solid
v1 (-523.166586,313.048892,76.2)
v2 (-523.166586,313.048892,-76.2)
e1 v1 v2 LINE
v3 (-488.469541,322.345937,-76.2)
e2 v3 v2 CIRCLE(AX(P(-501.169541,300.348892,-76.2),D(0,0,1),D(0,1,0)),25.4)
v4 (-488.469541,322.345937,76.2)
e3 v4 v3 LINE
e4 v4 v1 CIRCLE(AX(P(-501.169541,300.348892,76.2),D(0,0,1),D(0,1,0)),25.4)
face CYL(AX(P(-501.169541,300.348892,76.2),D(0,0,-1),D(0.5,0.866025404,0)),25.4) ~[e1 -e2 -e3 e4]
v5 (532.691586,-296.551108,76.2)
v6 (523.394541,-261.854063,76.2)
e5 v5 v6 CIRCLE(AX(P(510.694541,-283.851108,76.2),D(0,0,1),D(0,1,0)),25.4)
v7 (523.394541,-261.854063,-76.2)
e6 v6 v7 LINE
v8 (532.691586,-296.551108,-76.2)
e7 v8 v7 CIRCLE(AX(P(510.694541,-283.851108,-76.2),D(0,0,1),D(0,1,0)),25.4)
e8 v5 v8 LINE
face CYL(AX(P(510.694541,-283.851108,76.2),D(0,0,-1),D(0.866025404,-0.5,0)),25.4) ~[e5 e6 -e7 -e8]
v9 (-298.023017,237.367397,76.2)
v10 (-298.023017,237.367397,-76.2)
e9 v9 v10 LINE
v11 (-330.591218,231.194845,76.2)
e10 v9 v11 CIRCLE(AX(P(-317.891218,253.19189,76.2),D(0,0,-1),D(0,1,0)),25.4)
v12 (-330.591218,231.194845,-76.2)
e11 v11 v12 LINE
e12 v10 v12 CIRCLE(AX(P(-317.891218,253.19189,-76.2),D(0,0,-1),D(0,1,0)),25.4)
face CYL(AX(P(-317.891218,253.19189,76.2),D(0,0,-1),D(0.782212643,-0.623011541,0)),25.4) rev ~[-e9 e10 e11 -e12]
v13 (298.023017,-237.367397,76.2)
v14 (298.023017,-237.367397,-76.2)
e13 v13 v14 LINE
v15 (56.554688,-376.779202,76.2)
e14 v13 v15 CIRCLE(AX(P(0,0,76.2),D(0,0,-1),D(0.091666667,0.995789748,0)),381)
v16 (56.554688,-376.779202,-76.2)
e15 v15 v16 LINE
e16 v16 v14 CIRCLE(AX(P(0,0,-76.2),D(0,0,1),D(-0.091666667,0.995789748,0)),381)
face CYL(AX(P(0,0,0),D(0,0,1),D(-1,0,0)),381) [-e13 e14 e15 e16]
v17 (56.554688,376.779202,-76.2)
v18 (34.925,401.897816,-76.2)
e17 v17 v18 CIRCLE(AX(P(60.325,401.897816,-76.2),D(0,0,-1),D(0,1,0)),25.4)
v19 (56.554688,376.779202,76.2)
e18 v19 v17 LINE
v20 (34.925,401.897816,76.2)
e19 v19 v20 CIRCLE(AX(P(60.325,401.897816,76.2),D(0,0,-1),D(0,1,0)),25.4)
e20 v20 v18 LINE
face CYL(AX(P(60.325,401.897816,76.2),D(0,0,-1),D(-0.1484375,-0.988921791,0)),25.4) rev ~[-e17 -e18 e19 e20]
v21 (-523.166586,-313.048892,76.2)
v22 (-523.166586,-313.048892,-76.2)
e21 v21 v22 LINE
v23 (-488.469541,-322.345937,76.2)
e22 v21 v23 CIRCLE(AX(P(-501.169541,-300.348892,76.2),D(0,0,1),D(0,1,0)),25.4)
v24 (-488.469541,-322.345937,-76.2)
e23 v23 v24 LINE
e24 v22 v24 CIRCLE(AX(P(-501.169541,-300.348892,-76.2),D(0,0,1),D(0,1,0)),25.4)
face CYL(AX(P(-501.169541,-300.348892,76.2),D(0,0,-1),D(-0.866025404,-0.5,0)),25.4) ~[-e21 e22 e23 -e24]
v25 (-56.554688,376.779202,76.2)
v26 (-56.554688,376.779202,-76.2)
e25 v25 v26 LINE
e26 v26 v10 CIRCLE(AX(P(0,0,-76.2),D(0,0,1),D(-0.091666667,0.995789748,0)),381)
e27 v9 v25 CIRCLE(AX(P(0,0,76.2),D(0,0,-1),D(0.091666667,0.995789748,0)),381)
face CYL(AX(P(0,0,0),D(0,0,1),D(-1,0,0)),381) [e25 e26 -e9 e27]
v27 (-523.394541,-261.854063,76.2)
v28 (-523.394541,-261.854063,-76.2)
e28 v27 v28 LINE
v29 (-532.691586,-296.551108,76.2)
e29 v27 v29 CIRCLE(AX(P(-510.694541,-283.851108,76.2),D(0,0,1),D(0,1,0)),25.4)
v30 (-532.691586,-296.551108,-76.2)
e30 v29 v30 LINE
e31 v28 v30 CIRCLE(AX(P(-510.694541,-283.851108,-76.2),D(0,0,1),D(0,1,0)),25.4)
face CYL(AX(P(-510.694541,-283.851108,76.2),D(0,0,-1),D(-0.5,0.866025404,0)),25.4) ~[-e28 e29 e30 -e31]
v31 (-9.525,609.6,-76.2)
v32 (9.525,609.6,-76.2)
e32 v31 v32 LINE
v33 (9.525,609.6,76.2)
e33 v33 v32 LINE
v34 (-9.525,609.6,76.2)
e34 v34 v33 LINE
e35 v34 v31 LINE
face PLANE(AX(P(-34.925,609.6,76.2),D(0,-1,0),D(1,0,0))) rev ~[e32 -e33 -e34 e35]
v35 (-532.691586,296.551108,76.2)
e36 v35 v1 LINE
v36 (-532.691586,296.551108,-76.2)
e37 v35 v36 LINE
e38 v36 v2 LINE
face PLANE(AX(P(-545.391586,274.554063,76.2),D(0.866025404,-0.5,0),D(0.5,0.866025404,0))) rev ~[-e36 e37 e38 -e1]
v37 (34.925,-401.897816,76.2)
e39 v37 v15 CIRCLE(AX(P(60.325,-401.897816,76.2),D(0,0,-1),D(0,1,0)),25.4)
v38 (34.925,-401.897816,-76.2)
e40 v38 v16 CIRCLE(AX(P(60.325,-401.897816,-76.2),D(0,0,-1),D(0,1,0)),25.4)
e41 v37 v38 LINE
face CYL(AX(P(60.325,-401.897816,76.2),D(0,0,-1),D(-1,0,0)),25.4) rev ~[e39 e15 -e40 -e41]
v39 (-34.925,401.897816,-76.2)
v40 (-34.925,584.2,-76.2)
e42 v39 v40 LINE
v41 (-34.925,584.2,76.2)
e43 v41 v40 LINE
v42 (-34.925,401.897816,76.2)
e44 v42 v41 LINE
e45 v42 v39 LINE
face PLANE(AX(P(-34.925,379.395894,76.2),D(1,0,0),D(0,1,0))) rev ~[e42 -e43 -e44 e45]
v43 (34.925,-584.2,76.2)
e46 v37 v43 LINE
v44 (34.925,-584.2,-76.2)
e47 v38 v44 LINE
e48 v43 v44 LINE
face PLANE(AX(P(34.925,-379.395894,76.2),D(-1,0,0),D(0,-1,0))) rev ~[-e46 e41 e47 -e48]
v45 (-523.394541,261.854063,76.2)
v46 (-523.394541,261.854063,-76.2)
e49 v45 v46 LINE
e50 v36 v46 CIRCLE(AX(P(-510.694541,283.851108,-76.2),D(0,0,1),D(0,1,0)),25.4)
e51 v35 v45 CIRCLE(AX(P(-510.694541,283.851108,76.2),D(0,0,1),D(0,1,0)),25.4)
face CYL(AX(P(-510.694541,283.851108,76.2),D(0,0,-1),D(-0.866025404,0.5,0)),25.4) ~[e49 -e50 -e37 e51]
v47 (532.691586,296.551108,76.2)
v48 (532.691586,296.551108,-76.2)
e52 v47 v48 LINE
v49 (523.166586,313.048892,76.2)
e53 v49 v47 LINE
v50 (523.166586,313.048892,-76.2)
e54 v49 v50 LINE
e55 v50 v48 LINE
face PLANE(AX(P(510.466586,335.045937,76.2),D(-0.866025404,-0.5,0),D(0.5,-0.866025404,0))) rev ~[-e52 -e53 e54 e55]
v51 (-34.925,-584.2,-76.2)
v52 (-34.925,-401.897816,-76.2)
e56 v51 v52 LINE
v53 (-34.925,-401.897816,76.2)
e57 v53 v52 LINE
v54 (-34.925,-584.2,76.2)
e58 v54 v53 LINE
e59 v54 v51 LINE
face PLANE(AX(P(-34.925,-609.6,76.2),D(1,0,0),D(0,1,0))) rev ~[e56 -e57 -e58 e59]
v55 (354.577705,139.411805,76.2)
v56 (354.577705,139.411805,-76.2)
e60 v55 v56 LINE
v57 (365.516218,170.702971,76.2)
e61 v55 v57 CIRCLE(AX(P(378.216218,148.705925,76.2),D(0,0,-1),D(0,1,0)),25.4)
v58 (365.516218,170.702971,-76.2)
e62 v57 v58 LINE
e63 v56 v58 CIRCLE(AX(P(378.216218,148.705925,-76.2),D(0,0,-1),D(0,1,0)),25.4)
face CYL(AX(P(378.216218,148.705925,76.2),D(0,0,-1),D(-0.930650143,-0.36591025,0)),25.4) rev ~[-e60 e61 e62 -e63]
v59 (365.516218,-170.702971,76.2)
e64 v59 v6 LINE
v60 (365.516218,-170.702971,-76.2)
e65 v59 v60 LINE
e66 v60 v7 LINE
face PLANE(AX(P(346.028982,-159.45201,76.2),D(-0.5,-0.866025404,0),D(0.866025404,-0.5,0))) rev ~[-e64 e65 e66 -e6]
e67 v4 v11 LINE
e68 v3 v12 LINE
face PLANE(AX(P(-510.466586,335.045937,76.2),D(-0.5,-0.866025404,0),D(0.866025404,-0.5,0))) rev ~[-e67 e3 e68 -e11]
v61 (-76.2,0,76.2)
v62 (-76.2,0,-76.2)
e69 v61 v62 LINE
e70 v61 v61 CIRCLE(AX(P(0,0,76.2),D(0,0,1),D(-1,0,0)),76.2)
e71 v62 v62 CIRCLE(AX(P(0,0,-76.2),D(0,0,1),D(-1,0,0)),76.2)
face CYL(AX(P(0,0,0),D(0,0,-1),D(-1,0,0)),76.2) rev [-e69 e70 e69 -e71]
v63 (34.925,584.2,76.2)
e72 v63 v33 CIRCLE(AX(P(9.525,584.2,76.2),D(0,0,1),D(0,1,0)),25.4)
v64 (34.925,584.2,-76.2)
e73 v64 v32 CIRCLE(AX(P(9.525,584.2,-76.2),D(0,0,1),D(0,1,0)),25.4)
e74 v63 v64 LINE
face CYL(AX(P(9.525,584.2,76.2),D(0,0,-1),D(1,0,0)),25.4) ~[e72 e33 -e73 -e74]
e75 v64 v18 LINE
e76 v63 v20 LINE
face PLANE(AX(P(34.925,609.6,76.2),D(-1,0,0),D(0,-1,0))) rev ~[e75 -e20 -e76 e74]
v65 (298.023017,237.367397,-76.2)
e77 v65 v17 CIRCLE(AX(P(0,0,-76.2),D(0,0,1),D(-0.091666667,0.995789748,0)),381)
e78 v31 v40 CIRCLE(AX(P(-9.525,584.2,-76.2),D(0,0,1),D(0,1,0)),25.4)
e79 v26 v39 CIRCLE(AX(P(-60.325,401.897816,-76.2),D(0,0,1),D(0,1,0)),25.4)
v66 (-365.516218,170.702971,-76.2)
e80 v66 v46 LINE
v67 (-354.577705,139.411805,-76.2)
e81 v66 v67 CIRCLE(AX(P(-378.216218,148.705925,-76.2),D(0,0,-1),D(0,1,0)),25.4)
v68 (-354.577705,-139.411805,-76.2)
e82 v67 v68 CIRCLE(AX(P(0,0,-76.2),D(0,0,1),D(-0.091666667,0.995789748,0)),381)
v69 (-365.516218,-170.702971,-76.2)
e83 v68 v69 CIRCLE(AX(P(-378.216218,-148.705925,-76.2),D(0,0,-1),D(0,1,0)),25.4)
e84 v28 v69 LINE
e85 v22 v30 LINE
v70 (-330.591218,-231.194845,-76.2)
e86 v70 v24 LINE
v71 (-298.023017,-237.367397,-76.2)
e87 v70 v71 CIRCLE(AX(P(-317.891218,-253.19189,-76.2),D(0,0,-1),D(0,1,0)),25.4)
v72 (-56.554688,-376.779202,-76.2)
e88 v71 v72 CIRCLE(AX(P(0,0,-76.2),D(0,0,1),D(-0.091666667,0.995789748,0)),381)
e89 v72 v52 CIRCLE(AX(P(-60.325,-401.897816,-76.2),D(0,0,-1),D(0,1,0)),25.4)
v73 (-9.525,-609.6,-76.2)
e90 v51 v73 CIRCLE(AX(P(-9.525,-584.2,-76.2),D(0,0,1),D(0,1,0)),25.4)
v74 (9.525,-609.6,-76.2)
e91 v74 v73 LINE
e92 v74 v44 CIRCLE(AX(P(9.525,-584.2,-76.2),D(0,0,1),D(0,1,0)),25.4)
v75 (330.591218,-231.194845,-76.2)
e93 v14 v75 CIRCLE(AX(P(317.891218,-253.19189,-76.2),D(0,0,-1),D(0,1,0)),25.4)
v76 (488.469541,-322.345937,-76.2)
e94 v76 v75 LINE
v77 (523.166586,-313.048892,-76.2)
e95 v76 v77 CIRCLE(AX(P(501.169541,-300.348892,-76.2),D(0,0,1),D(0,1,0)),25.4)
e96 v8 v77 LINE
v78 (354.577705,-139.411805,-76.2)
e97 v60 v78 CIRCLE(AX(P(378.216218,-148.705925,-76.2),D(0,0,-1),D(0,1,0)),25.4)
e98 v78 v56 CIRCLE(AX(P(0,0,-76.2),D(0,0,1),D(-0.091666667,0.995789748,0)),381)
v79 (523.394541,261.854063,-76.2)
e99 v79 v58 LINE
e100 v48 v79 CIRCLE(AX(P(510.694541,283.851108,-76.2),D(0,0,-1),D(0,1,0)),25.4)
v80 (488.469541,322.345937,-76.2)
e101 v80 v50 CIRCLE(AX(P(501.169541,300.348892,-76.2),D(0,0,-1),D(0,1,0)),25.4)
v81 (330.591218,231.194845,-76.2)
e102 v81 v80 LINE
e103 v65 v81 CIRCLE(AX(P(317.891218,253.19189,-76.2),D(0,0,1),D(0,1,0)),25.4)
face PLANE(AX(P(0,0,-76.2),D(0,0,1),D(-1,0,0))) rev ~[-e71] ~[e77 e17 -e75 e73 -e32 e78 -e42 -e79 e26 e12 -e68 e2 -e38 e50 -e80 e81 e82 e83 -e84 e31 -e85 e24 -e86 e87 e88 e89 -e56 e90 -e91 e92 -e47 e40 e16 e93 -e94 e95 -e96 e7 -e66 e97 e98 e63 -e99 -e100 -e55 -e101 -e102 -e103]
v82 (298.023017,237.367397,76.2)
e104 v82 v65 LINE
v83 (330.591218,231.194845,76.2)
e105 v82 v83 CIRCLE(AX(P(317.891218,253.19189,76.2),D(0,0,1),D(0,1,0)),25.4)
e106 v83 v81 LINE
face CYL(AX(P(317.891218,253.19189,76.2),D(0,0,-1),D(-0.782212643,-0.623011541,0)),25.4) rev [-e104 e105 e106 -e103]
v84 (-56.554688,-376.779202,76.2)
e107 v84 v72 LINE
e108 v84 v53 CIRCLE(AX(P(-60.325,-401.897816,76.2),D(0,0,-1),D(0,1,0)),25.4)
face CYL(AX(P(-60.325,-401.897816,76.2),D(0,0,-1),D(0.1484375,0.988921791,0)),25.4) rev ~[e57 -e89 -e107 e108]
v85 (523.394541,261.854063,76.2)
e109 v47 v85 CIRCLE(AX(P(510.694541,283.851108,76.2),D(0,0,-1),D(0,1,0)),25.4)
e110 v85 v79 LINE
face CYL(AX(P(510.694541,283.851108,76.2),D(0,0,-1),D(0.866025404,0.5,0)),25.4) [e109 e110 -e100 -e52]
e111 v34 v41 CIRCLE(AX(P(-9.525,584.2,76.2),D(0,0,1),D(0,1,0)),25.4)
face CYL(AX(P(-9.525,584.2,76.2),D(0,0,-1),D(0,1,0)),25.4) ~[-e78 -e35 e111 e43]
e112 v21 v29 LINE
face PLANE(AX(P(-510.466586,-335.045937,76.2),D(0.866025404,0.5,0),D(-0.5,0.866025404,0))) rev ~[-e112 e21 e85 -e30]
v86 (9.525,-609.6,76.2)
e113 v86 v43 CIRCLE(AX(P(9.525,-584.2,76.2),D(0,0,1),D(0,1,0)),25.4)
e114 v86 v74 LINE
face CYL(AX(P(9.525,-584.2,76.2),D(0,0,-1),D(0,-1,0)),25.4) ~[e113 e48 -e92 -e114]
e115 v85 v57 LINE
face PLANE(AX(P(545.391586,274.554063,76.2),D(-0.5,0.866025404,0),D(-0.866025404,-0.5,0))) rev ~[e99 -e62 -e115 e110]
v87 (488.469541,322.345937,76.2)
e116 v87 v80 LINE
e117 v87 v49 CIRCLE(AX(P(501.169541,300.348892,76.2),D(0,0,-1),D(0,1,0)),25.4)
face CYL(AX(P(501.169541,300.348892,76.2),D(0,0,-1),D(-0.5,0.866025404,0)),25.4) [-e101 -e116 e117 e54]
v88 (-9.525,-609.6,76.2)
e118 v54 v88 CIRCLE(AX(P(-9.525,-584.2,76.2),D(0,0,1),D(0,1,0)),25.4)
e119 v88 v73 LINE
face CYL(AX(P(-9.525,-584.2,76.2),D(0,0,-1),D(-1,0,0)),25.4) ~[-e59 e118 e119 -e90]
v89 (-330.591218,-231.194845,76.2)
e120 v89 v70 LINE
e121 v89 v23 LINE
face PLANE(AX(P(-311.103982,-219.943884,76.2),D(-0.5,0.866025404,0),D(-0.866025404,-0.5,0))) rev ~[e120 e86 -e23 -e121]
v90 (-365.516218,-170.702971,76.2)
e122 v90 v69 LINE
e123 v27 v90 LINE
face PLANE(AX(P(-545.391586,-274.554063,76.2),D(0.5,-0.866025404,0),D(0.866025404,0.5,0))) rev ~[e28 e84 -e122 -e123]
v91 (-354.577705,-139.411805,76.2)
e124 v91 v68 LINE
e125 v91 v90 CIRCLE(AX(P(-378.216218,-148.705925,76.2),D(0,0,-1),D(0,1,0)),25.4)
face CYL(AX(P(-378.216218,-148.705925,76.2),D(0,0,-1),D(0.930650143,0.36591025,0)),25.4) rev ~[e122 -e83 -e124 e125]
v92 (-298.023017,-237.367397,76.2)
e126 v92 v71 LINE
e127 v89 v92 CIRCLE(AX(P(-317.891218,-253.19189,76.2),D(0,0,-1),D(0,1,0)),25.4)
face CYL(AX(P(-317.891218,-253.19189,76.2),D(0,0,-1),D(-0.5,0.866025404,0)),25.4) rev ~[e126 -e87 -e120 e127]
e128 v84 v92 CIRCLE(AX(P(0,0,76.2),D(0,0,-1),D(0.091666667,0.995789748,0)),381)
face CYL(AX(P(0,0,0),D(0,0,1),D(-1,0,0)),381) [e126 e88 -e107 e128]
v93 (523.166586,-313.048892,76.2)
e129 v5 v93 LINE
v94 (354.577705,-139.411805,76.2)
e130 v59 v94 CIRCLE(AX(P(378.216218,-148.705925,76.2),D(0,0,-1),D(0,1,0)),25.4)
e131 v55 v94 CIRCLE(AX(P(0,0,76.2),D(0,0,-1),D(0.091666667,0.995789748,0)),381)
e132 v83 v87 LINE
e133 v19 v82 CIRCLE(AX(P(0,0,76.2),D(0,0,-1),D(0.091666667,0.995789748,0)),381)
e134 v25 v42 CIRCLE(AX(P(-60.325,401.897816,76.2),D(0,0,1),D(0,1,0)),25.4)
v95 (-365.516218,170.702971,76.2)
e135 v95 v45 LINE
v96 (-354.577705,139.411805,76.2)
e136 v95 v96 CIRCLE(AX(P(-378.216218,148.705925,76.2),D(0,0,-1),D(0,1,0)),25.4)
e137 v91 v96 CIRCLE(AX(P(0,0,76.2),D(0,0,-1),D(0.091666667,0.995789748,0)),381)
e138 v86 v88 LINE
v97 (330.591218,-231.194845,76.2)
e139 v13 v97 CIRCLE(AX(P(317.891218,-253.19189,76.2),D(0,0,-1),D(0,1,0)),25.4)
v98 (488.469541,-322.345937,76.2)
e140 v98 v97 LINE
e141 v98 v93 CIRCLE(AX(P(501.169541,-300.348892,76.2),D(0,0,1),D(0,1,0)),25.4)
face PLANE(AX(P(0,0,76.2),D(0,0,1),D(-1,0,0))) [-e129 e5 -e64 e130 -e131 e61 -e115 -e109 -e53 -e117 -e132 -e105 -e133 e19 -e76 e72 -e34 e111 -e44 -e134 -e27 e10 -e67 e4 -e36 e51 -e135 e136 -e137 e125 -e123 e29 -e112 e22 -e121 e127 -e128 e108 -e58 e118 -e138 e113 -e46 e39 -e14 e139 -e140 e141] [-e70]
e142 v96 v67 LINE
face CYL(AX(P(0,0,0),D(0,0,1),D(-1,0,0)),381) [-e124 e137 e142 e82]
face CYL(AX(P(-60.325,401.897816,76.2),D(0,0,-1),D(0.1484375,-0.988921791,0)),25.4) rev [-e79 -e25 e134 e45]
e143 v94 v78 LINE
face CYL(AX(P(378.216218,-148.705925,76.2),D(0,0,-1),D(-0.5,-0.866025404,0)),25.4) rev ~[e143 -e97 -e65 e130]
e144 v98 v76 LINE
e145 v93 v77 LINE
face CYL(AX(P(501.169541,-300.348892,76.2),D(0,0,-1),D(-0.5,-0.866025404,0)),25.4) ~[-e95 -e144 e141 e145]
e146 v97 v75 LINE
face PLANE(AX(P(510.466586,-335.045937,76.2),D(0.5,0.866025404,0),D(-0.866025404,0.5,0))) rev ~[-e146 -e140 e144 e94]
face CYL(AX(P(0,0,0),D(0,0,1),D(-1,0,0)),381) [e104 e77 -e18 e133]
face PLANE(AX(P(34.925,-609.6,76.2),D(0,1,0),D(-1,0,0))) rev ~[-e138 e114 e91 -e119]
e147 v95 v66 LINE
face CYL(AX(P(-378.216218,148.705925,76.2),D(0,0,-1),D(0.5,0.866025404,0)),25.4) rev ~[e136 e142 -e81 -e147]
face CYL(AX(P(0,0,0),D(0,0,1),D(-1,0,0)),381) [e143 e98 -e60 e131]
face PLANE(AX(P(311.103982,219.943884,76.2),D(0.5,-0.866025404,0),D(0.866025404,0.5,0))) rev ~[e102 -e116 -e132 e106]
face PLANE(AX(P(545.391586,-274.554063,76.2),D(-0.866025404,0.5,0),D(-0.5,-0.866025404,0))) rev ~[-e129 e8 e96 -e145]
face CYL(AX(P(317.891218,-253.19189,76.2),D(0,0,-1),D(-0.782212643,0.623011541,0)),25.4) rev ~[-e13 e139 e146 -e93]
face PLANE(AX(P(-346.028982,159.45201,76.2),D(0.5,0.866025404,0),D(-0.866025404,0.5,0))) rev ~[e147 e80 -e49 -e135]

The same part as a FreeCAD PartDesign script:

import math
import FreeCAD as App
import Part
import Sketcher
from FreeCAD import Vector
Q = App.Units.Quantity


def edges_at(feature, points):
    """Names of the edges that pass closest to the given points."""
    edges = feature.Shape.Edges
    near = lambda p: min(range(len(edges)), key=lambda i: edges[i].distToShape(Part.Vertex(*p))[0])
    return sorted({f"Edge{near(p) + 1}" for p in points})

doc = App.newDocument("Part")
params = doc.addObject("Spreadsheet::Sheet", "Params")
for row, (alias, value) in enumerate([
    ("sketch1_diameter", "30 in"),
    ("sketch1_diameter2", "6 in"),
    ("pad1_length", "6 in"),
    ("sketch2_radius", "15 in"),
    ("sketch2_width", "2.75 in"),
    ("pad2_length", "6 in"),
    ("fillet_radius", "1 in"),
    ("fillet2_radius", "1 in"),
], start=1):
    params.set(f"A{row}", alias)
    params.set(f"B{row}", "=" + value)
    params.setAlias(f"B{row}", alias)

body = doc.addObject("PartDesign::Body", "Body")

# Sketch on XY plane
sketch1 = body.newObject("Sketcher::SketchObject", "Sketch")
sketch1.AttachmentSupport = (doc.getObject("XY_Plane"), [""])
sketch1.MapMode = "FlatFace"
sketch1.addGeometry(Part.Circle(Vector(0, 0, 0), Vector(0, 0, 1), 381), False)
sketch1.addGeometry(Part.Circle(Vector(0, 0, 0), Vector(0, 0, 1), 76.2), False)
sketch1.addConstraint(Sketcher.Constraint("Coincident", 0, 3, -1, 1))
sketch1.addConstraint(Sketcher.Constraint("Coincident", 1, 3, -1, 1))
sketch1.addConstraint(Sketcher.Constraint("Diameter", 0, Q("30 in")))
sketch1.addConstraint(Sketcher.Constraint("Diameter", 1, Q("6 in")))
sketch1.setExpression("Constraints[2]", "Params.sketch1_diameter")
sketch1.setExpression("Constraints[3]", "Params.sketch1_diameter2")
pad1 = body.newObject("PartDesign::Pad", "Pad")
pad1.Profile = sketch1
pad1.setExpression("Length", "Params.pad1_length")
pad1.Midplane = True

# Sketch on XY plane
sketch2 = body.newObject("Sketcher::SketchObject", "Sketch001")
sketch2.AttachmentSupport = (doc.getObject("XY_Plane"), [""])
sketch2.MapMode = "FlatFace"
sketch2.AttachmentOffset = App.Placement(Vector(0, 0, 3 * 25.4), App.Rotation())
sketch2.addGeometry(Part.LineSegment(Vector(-34.925, 609.6, 0), Vector(-34.925, 379.395894, 0)), False)
sketch2.addGeometry(Part.ArcOfCircle(Part.Circle(Vector(0, 0, 0), Vector(0, 0, 1), 381), math.radians(84.740504), math.radians(95.259496)), False)
sketch2.addGeometry(Part.LineSegment(Vector(34.925, 379.395894, 0), Vector(34.925, 609.6, 0)), False)
sketch2.addGeometry(Part.LineSegment(Vector(34.925, 609.6, 0), Vector(-34.925, 609.6, 0)), False)
sketch2.addConstraint(Sketcher.Constraint("Coincident", 0, 2, 1, 2))
sketch2.addConstraint(Sketcher.Constraint("Coincident", 1, 1, 2, 1))
sketch2.addConstraint(Sketcher.Constraint("Coincident", 2, 2, 3, 1))
sketch2.addConstraint(Sketcher.Constraint("Coincident", 3, 2, 0, 1))
sketch2.addConstraint(Sketcher.Constraint("Vertical", 0))
sketch2.addConstraint(Sketcher.Constraint("Vertical", 2))
sketch2.addConstraint(Sketcher.Constraint("Horizontal", 3))
sketch2.addConstraint(Sketcher.Constraint("Coincident", 1, 3, -1, 1))
sketch2.addConstraint(Sketcher.Constraint("Horizontal", 0, 2, 1, 1))
sketch2.addConstraint(Sketcher.Constraint("Radius", 1, Q("15 in")))
sketch2.addConstraint(Sketcher.Constraint("DistanceY", -1, 1, 2, 2, Q("24 in")))
sketch2.addConstraint(Sketcher.Constraint("DistanceX", 3, 2, 3, 1, Q("2.75 in")))
sketch2.setExpression("Constraints[9]", "Params.sketch2_radius")
sketch2.setExpression("Constraints[11]", "Params.sketch2_width")
pad2 = body.newObject("PartDesign::Pad", "Pad001")
pad2.Profile = sketch2
pad2.setExpression("Length", "Params.pad2_length")
pad2.Reversed = True
doc.recompute()

fillet = body.newObject("PartDesign::Fillet", "Fillet")
fillet.Base = (pad2, edges_at(pad2, [
    (34.925, 379.396, 0),
    (-34.925, 379.396, 0),
    (-34.925, 609.6, 0),
    (34.925, 609.6, 0),
]))
fillet.setExpression("Radius", "Params.fillet_radius")
doc.recompute()

polarpattern = body.newObject("PartDesign::PolarPattern", "PolarPattern")
polarpattern.Originals = [pad2]
polarpattern.Axis = (doc.getObject("Z_Axis"), [""])
polarpattern.Angle = 360
polarpattern.Occurrences = 6
body.Tip = polarpattern
doc.recompute()

fillet2 = body.newObject("PartDesign::Fillet", "Fillet001")
fillet2.Base = (polarpattern, edges_at(polarpattern, [
    (-311.104, 219.944, 0),
    (-346.029, 159.452, 0),
    (-545.392, 274.554, 0),
    (-510.467, 335.046, 0),
    (-346.029, -159.452, 0),
    (-311.104, -219.944, 0),
    (-510.467, -335.046, 0),
    (-545.392, -274.554, 0),
    (-34.925, -379.396, 0),
    (34.925, -379.396, 0),
    (34.925, -609.6, 0),
    (-34.925, -609.6, 0),
    (311.104, -219.944, 0),
    (346.029, -159.452, 0),
    (545.392, -274.554, 0),
    (510.467, -335.046, 0),
    (346.029, 159.452, 0),
    (311.104, 219.944, 0),
    (510.467, 335.046, 0),
    (545.392, 274.554, 0),
]))
fillet2.setExpression("Radius", "Params.fillet2_radius")

doc.recompute()
